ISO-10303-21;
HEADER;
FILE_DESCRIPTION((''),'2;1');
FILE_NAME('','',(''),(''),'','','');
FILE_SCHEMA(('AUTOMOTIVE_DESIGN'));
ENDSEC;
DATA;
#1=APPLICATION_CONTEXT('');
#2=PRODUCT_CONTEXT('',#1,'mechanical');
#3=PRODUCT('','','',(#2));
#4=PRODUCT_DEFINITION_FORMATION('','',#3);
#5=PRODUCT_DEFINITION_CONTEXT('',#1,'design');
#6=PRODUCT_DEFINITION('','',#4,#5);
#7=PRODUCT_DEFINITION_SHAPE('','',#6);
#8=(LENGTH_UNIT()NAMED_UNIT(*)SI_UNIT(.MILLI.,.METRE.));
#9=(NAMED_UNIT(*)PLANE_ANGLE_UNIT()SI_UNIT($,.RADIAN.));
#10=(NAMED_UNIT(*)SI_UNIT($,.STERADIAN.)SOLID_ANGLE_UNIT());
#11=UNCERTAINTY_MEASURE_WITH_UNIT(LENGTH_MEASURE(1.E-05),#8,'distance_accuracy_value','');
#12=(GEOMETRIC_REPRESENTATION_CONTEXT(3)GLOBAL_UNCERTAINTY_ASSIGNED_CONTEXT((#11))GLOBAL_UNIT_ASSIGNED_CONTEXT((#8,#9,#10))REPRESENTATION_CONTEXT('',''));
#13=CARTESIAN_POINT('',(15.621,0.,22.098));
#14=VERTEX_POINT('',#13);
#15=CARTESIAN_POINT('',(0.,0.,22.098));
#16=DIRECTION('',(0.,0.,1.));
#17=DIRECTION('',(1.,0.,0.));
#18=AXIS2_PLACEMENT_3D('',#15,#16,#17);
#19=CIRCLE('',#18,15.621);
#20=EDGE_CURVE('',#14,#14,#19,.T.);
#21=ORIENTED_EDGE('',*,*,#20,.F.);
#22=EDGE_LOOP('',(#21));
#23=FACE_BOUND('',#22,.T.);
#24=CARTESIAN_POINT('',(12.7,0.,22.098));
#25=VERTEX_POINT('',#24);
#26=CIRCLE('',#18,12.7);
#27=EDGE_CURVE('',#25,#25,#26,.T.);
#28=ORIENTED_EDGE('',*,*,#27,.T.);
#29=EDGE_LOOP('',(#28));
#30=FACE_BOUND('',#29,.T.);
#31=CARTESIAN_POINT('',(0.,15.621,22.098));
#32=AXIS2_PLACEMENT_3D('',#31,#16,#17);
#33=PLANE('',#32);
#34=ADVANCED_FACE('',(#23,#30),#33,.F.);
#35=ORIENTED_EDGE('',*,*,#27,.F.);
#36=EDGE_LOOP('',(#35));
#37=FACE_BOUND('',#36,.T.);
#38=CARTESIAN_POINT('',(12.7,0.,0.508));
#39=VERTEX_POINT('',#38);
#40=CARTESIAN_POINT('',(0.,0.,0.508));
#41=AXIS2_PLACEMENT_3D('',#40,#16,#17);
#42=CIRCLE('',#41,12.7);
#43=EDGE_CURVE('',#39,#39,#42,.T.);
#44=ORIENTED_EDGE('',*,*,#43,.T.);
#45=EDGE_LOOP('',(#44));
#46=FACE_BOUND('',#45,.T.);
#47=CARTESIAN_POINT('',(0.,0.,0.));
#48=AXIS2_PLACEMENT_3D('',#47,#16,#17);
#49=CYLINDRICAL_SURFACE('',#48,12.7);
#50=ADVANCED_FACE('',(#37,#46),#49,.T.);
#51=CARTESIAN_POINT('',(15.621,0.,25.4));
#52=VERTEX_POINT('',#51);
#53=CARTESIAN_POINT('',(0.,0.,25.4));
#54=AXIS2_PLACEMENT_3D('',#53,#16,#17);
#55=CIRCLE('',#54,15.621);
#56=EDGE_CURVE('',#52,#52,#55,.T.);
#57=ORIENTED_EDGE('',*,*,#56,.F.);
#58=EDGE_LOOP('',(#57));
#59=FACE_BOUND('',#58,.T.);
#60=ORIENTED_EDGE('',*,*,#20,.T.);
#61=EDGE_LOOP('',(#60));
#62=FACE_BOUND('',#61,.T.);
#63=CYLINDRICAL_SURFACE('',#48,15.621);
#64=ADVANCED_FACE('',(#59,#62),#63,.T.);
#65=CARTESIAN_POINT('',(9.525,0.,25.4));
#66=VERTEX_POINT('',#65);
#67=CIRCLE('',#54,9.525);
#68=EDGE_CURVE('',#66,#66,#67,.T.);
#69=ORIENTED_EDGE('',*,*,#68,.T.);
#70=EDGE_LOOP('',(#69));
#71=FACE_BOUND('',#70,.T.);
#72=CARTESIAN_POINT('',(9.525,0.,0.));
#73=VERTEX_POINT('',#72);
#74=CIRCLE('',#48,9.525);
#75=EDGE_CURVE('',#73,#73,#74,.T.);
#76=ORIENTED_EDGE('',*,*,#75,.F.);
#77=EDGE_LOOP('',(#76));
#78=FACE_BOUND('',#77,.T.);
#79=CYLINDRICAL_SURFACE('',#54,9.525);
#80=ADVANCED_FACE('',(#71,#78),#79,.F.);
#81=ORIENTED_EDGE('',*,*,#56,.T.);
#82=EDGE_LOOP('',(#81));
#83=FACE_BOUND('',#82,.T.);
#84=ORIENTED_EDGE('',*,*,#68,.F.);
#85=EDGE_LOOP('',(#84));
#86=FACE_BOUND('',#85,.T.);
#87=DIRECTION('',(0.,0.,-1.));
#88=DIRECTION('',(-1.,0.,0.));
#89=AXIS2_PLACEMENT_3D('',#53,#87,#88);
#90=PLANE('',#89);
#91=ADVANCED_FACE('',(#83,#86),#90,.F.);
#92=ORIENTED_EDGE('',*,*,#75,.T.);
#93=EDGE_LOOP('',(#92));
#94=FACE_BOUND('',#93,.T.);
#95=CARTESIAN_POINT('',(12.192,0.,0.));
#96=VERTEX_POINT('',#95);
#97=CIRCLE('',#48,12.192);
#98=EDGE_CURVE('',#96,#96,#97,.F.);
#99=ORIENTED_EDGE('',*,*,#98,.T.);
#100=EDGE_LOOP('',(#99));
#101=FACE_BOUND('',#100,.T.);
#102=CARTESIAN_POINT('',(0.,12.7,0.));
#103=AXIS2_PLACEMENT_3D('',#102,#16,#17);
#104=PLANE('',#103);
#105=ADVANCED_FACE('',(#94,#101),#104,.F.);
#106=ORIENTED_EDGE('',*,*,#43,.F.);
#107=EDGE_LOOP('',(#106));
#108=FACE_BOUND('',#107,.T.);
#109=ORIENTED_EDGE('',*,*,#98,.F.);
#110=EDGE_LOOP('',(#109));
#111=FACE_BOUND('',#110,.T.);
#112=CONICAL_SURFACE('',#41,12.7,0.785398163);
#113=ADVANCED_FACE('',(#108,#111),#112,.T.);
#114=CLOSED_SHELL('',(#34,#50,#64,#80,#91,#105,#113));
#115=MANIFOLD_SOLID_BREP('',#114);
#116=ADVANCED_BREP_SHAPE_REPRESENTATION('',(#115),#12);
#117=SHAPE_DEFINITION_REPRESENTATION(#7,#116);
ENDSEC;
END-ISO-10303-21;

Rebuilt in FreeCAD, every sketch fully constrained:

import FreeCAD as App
import Part
import Sketcher

V = App.Vector
Q = App.Units.Quantity


def edges_at(feature, points):
    """Names of the edges that pass closest to the given points."""
    edges = feature.Shape.Edges
    near = lambda p: min(range(len(edges)), key=lambda i: edges[i].distToShape(Part.Vertex(*p))[0])
    return sorted({f"Edge{near(p) + 1}" for p in points})

doc = App.newDocument("Part")
body = doc.addObject("PartDesign::Body", "Body")

sketch1 = body.newObject("Sketcher::SketchObject", "Sketch")
sketch1.AttachmentSupport = (doc.getObject("YZ_Plane"), [""])
sketch1.MapMode = "FlatFace"
sketch1.addGeometry([
    Part.LineSegment(V(0, 25.4, 0), V(0, 0, 0)),
    Part.LineSegment(V(0, 0, 0), V(12.7, 0, 0)),
    Part.LineSegment(V(12.7, 0, 0), V(12.7, 22.1, 0)),
    Part.LineSegment(V(12.7, 22.1, 0), V(15.6, 22.1, 0)),
    Part.LineSegment(V(15.6, 22.1, 0), V(15.6, 25.4, 0)),
    Part.LineSegment(V(15.6, 25.4, 0), V(0, 25.4, 0)),
], False)
sketch1.addConstraint([
    Sketcher.Constraint("Coincident", 0, 2, 1, 1),
    Sketcher.Constraint("Coincident", 1, 2, 2, 1),
    Sketcher.Constraint("Coincident", 2, 2, 3, 1),
    Sketcher.Constraint("Coincident", 3, 2, 4, 1),
    Sketcher.Constraint("Coincident", 4, 2, 5, 1),
    Sketcher.Constraint("Coincident", 5, 2, 0, 1),
    Sketcher.Constraint("Vertical", 0),
    Sketcher.Constraint("Horizontal", 1),
    Sketcher.Constraint("Vertical", 2),
    Sketcher.Constraint("Horizontal", 3),
    Sketcher.Constraint("Vertical", 4),
    Sketcher.Constraint("Horizontal", 5),
    Sketcher.Constraint("Coincident", 0, 2, -1, 1),
    Sketcher.Constraint("DistanceY", 0, 2, 0, 1, Q("1 in")),
    Sketcher.Constraint("DistanceX", 1, 1, 1, 2, Q("0.5 in")),
    Sketcher.Constraint("DistanceY", 2, 1, 2, 2, Q("0.87 in")),
    Sketcher.Constraint("DistanceX", 3, 1, 3, 2, Q("0.115 in")),
])
revolution = body.newObject("PartDesign::Revolution", "Revolution")
revolution.Profile = sketch1
revolution.ReferenceAxis = (sketch1, ["V_Axis"])
revolution.Angle = 360

sketch2 = body.newObject("Sketcher::SketchObject", "Sketch001")
sketch2.AttachmentSupport = (doc.getObject("XY_Plane"), [""])
sketch2.MapMode = "FlatFace"
sketch2.AttachmentOffset = App.Placement(V(0, 0, 1 * 25.4), App.Rotation())
sketch2.addGeometry(Part.Circle(V(0, 0, 0), V(0, 0, 1), 10), False)
sketch2.addConstraint([
    Sketcher.Constraint("Coincident", 0, 3, -1, 1),
    Sketcher.Constraint("Diameter", 0, Q("0.75 in")),
])
doc.recompute()
hole = body.newObject("PartDesign::Hole", "Hole")
hole.Profile = sketch2
hole.ThreadType = "None"
hole.Diameter = Q("0.75 in")
hole.DepthType = "ThroughAll"
doc.recompute()

chamfer = body.newObject("PartDesign::Chamfer", "Chamfer")
chamfer.Base = (hole, edges_at(hole, [(0, -12.7, 0)]))
chamfer.Size = Q("0.02 in")

doc.recompute()
